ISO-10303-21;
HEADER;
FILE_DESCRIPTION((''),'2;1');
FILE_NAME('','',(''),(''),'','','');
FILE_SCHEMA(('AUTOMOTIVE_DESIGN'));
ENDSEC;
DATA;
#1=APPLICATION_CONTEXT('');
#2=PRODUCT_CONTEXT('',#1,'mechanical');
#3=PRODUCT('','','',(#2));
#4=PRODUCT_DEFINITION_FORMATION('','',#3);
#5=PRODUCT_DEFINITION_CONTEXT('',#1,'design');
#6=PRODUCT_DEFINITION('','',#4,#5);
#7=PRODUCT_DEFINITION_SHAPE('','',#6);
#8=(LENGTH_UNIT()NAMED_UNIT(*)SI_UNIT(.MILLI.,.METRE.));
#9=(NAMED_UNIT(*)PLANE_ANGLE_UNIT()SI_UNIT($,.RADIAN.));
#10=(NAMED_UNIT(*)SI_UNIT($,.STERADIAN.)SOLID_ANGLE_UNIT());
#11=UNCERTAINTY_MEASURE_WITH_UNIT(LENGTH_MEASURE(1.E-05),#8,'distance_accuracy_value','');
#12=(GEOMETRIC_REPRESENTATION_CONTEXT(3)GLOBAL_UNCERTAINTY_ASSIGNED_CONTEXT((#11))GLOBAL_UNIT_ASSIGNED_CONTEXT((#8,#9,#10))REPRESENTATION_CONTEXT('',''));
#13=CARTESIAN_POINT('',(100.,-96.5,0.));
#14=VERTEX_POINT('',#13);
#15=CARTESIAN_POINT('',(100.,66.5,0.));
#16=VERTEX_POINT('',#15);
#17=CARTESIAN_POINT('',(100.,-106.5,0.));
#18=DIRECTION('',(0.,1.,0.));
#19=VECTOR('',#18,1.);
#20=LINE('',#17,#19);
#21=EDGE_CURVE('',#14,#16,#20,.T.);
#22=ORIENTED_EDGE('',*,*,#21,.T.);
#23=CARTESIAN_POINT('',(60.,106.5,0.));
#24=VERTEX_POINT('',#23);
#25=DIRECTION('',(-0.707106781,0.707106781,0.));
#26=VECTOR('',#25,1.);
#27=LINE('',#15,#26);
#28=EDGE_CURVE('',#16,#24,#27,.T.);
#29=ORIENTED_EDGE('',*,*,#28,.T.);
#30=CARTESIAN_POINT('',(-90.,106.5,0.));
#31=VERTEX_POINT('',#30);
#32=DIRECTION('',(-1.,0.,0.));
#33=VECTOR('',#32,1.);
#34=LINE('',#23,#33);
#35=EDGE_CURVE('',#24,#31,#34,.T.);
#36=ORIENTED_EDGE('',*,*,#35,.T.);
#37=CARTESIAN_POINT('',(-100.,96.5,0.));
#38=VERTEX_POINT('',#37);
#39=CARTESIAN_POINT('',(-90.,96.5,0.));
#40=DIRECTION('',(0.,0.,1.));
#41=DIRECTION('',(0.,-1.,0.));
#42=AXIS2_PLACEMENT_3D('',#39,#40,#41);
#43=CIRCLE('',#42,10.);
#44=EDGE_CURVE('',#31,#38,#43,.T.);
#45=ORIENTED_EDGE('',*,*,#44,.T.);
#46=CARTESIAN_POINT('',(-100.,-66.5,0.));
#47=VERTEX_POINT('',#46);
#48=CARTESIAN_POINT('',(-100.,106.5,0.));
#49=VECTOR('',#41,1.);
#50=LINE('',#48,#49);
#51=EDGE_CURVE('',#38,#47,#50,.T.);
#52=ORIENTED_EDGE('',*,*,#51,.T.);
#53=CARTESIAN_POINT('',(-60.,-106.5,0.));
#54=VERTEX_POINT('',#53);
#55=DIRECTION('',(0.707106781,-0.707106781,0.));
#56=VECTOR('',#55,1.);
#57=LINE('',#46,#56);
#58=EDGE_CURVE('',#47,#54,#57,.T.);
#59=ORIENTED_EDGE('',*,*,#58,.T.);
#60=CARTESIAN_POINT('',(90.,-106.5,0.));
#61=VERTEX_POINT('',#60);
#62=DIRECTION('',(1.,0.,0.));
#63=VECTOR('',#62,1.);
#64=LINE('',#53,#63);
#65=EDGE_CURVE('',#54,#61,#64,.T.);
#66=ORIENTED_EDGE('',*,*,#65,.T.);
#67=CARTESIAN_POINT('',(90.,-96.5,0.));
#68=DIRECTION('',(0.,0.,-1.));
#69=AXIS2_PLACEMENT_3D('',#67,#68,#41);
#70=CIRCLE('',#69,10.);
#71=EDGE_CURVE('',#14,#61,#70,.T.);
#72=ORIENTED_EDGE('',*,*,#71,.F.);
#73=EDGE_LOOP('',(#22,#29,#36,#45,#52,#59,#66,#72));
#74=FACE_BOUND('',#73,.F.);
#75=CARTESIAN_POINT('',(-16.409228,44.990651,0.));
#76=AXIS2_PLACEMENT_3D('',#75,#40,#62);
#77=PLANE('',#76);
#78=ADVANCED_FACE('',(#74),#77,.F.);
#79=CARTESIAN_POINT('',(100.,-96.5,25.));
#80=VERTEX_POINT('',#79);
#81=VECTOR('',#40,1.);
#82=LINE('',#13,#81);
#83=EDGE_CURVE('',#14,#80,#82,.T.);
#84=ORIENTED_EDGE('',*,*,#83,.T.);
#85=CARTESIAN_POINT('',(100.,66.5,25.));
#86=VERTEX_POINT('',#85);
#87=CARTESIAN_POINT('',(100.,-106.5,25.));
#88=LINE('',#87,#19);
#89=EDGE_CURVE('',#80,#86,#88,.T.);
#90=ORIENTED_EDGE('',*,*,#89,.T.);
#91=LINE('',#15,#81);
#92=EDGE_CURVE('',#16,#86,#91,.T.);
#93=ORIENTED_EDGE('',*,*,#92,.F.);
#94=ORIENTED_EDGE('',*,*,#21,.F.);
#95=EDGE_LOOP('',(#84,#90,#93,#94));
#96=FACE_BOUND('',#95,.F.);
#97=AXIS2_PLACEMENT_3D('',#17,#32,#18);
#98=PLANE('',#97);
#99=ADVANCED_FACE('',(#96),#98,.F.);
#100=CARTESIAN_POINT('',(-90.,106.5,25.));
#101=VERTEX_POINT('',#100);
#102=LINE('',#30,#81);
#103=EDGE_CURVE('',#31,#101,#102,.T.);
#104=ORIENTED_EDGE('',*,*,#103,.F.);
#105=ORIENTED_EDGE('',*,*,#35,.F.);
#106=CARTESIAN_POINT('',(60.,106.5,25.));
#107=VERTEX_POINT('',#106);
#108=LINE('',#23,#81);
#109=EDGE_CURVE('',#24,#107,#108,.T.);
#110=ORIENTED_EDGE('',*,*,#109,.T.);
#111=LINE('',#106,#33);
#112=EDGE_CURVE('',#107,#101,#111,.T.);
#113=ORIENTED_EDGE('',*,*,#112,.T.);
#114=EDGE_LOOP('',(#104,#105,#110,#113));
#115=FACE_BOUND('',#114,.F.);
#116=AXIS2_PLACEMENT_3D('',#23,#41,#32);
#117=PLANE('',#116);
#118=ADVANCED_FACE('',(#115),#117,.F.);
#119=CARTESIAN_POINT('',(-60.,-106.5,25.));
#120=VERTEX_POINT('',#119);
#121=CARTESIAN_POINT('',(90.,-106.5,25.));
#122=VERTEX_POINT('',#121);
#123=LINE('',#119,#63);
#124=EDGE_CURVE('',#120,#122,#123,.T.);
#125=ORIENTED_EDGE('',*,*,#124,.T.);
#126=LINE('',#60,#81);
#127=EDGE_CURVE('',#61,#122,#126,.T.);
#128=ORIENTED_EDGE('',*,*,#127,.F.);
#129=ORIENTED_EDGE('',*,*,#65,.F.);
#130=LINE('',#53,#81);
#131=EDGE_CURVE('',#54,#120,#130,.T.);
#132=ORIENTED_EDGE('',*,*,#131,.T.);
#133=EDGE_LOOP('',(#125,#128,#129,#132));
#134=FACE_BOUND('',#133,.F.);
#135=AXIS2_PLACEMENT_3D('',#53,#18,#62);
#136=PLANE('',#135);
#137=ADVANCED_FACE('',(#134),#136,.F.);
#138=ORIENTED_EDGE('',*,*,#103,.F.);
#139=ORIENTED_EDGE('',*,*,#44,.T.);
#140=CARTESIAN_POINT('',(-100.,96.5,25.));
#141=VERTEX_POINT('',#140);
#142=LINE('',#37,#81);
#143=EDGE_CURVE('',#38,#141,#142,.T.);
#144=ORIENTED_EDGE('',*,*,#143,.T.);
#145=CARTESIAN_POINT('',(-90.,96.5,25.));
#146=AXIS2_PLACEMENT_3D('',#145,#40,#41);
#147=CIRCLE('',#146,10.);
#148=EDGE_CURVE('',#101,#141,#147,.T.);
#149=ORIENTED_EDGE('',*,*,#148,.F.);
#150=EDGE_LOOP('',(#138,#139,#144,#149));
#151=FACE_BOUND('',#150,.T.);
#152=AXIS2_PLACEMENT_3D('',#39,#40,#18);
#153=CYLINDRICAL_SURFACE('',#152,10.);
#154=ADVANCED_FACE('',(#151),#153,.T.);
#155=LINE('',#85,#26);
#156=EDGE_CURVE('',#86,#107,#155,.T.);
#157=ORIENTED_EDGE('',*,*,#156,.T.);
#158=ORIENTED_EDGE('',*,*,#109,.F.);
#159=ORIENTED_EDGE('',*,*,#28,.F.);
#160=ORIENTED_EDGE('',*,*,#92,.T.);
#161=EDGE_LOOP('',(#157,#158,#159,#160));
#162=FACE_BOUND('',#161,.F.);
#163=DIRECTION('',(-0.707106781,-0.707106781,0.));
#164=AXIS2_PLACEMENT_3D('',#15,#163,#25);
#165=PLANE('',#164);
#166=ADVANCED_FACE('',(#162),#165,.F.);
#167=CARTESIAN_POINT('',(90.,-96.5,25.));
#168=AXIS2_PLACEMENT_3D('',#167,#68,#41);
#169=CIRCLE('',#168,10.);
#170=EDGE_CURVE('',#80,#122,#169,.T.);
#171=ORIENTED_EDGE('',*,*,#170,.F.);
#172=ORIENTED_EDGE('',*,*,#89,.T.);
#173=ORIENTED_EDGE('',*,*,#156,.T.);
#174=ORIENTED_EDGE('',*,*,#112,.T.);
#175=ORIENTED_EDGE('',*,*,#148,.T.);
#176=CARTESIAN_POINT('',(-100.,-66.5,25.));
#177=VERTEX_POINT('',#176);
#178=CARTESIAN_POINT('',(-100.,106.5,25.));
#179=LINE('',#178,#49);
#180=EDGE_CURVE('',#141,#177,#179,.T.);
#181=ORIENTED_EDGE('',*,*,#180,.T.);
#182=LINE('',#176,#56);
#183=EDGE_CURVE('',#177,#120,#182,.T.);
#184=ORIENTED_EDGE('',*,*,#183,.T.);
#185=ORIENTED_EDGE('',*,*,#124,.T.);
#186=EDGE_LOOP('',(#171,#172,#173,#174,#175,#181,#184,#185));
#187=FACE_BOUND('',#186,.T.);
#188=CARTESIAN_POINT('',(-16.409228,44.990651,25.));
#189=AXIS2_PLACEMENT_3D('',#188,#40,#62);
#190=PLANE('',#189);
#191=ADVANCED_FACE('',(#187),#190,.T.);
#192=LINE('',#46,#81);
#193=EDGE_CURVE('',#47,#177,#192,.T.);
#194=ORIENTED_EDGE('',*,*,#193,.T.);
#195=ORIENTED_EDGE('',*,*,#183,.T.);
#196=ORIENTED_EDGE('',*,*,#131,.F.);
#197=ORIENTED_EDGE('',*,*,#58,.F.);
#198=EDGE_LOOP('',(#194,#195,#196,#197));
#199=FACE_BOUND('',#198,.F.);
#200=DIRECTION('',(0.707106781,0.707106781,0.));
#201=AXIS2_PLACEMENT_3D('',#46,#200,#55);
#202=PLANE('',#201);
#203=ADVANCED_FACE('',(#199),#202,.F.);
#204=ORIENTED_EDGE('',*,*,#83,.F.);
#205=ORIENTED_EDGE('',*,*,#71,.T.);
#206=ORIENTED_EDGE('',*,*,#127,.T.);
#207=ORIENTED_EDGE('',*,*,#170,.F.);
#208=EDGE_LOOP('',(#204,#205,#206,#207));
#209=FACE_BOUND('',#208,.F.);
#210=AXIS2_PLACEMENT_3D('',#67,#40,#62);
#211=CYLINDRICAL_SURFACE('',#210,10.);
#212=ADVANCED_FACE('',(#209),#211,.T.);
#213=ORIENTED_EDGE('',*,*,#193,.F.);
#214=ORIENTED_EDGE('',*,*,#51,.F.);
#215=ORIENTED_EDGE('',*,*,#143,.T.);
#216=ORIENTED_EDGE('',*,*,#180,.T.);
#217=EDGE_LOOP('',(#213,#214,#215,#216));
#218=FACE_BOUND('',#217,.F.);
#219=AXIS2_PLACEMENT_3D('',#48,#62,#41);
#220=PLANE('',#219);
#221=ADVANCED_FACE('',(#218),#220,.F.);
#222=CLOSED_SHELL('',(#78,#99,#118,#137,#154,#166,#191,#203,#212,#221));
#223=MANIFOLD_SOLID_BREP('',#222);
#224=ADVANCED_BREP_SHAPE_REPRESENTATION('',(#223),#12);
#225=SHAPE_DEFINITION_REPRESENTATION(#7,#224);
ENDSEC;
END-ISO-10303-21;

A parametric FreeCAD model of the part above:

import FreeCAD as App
import Part
import Sketcher
Q = App.Units.Quantity


def edges_at(feature, points):
    """Names of the edges that pass closest to the given points."""
    edges = feature.Shape.Edges
    near = lambda p: min(range(len(edges)), key=lambda i: edges[i].distToShape(Part.Vertex(*p))[0])
    return sorted({f"Edge{near(p) + 1}" for p in points})


def add_polygon(sketch, points):
    """Adds a closed chain of lines whose ends are joined by coincident constraints."""
    first, n = sketch.GeometryCount, len(points)
    for a, b in zip(points, points[1:] + points[:1]):
        sketch.addGeometry(Part.LineSegment(App.Vector(*a, 0), App.Vector(*b, 0)), False)
    for i in range(n):
        sketch.addConstraint(Sketcher.Constraint("Coincident", first + i, 2, first + (i + 1) % n, 1))

doc = App.newDocument("Part")
body = doc.addObject("PartDesign::Body", "Body")

sketch1 = doc.addObject("Sketcher::SketchObject", "Sketch")
body.addObject(sketch1)
sketch1.AttachmentSupport = (doc.XY_Plane, [""])
sketch1.MapMode = "FlatFace"
add_polygon(sketch1, [(100, 66), (60, 106), (-100, 106), (-100, -66), (-60, -106), (100, -106)])
sketch1.addConstraint([
    Sketcher.Constraint("Horizontal", 1),
    Sketcher.Constraint("Vertical", 2),
    Sketcher.Constraint("Horizontal", 4),
    Sketcher.Constraint("Vertical", 5),
    Sketcher.Constraint("Symmetric", 0, 2, 3, 2, -1, 1),
    Sketcher.Constraint("Symmetric", 2, 2, 5, 2, -1, 1),
    Sketcher.Constraint("DistanceX", 1, 2, 1, 1, Q("160 mm")),
    Sketcher.Constraint("DistanceY", 2, 2, 2, 1, Q("173 mm")),
    Sketcher.Constraint("Angle", 0, Q("135 deg")),
    Sketcher.Constraint("DistanceX", -1, 1, 0, 2, Q("60 mm")),
])
pad1 = doc.addObject("PartDesign::Pad", "Pad")
body.addObject(pad1)
pad1.Profile = sketch1
pad1.Length = 25
doc.recompute()

fillet = doc.addObject("PartDesign::Fillet", "Fillet")
body.addObject(fillet)
fillet.Base = (pad1, edges_at(pad1, [(-100, 106.5, 12.5)]))
fillet.Radius = 10
doc.recompute()

fillet2 = doc.addObject("PartDesign::Fillet", "Fillet001")
body.addObject(fillet2)
fillet2.Base = (fillet, edges_at(fillet, [(100, -106.5, 12.5)]))
fillet2.Radius = 10

doc.recompute()
